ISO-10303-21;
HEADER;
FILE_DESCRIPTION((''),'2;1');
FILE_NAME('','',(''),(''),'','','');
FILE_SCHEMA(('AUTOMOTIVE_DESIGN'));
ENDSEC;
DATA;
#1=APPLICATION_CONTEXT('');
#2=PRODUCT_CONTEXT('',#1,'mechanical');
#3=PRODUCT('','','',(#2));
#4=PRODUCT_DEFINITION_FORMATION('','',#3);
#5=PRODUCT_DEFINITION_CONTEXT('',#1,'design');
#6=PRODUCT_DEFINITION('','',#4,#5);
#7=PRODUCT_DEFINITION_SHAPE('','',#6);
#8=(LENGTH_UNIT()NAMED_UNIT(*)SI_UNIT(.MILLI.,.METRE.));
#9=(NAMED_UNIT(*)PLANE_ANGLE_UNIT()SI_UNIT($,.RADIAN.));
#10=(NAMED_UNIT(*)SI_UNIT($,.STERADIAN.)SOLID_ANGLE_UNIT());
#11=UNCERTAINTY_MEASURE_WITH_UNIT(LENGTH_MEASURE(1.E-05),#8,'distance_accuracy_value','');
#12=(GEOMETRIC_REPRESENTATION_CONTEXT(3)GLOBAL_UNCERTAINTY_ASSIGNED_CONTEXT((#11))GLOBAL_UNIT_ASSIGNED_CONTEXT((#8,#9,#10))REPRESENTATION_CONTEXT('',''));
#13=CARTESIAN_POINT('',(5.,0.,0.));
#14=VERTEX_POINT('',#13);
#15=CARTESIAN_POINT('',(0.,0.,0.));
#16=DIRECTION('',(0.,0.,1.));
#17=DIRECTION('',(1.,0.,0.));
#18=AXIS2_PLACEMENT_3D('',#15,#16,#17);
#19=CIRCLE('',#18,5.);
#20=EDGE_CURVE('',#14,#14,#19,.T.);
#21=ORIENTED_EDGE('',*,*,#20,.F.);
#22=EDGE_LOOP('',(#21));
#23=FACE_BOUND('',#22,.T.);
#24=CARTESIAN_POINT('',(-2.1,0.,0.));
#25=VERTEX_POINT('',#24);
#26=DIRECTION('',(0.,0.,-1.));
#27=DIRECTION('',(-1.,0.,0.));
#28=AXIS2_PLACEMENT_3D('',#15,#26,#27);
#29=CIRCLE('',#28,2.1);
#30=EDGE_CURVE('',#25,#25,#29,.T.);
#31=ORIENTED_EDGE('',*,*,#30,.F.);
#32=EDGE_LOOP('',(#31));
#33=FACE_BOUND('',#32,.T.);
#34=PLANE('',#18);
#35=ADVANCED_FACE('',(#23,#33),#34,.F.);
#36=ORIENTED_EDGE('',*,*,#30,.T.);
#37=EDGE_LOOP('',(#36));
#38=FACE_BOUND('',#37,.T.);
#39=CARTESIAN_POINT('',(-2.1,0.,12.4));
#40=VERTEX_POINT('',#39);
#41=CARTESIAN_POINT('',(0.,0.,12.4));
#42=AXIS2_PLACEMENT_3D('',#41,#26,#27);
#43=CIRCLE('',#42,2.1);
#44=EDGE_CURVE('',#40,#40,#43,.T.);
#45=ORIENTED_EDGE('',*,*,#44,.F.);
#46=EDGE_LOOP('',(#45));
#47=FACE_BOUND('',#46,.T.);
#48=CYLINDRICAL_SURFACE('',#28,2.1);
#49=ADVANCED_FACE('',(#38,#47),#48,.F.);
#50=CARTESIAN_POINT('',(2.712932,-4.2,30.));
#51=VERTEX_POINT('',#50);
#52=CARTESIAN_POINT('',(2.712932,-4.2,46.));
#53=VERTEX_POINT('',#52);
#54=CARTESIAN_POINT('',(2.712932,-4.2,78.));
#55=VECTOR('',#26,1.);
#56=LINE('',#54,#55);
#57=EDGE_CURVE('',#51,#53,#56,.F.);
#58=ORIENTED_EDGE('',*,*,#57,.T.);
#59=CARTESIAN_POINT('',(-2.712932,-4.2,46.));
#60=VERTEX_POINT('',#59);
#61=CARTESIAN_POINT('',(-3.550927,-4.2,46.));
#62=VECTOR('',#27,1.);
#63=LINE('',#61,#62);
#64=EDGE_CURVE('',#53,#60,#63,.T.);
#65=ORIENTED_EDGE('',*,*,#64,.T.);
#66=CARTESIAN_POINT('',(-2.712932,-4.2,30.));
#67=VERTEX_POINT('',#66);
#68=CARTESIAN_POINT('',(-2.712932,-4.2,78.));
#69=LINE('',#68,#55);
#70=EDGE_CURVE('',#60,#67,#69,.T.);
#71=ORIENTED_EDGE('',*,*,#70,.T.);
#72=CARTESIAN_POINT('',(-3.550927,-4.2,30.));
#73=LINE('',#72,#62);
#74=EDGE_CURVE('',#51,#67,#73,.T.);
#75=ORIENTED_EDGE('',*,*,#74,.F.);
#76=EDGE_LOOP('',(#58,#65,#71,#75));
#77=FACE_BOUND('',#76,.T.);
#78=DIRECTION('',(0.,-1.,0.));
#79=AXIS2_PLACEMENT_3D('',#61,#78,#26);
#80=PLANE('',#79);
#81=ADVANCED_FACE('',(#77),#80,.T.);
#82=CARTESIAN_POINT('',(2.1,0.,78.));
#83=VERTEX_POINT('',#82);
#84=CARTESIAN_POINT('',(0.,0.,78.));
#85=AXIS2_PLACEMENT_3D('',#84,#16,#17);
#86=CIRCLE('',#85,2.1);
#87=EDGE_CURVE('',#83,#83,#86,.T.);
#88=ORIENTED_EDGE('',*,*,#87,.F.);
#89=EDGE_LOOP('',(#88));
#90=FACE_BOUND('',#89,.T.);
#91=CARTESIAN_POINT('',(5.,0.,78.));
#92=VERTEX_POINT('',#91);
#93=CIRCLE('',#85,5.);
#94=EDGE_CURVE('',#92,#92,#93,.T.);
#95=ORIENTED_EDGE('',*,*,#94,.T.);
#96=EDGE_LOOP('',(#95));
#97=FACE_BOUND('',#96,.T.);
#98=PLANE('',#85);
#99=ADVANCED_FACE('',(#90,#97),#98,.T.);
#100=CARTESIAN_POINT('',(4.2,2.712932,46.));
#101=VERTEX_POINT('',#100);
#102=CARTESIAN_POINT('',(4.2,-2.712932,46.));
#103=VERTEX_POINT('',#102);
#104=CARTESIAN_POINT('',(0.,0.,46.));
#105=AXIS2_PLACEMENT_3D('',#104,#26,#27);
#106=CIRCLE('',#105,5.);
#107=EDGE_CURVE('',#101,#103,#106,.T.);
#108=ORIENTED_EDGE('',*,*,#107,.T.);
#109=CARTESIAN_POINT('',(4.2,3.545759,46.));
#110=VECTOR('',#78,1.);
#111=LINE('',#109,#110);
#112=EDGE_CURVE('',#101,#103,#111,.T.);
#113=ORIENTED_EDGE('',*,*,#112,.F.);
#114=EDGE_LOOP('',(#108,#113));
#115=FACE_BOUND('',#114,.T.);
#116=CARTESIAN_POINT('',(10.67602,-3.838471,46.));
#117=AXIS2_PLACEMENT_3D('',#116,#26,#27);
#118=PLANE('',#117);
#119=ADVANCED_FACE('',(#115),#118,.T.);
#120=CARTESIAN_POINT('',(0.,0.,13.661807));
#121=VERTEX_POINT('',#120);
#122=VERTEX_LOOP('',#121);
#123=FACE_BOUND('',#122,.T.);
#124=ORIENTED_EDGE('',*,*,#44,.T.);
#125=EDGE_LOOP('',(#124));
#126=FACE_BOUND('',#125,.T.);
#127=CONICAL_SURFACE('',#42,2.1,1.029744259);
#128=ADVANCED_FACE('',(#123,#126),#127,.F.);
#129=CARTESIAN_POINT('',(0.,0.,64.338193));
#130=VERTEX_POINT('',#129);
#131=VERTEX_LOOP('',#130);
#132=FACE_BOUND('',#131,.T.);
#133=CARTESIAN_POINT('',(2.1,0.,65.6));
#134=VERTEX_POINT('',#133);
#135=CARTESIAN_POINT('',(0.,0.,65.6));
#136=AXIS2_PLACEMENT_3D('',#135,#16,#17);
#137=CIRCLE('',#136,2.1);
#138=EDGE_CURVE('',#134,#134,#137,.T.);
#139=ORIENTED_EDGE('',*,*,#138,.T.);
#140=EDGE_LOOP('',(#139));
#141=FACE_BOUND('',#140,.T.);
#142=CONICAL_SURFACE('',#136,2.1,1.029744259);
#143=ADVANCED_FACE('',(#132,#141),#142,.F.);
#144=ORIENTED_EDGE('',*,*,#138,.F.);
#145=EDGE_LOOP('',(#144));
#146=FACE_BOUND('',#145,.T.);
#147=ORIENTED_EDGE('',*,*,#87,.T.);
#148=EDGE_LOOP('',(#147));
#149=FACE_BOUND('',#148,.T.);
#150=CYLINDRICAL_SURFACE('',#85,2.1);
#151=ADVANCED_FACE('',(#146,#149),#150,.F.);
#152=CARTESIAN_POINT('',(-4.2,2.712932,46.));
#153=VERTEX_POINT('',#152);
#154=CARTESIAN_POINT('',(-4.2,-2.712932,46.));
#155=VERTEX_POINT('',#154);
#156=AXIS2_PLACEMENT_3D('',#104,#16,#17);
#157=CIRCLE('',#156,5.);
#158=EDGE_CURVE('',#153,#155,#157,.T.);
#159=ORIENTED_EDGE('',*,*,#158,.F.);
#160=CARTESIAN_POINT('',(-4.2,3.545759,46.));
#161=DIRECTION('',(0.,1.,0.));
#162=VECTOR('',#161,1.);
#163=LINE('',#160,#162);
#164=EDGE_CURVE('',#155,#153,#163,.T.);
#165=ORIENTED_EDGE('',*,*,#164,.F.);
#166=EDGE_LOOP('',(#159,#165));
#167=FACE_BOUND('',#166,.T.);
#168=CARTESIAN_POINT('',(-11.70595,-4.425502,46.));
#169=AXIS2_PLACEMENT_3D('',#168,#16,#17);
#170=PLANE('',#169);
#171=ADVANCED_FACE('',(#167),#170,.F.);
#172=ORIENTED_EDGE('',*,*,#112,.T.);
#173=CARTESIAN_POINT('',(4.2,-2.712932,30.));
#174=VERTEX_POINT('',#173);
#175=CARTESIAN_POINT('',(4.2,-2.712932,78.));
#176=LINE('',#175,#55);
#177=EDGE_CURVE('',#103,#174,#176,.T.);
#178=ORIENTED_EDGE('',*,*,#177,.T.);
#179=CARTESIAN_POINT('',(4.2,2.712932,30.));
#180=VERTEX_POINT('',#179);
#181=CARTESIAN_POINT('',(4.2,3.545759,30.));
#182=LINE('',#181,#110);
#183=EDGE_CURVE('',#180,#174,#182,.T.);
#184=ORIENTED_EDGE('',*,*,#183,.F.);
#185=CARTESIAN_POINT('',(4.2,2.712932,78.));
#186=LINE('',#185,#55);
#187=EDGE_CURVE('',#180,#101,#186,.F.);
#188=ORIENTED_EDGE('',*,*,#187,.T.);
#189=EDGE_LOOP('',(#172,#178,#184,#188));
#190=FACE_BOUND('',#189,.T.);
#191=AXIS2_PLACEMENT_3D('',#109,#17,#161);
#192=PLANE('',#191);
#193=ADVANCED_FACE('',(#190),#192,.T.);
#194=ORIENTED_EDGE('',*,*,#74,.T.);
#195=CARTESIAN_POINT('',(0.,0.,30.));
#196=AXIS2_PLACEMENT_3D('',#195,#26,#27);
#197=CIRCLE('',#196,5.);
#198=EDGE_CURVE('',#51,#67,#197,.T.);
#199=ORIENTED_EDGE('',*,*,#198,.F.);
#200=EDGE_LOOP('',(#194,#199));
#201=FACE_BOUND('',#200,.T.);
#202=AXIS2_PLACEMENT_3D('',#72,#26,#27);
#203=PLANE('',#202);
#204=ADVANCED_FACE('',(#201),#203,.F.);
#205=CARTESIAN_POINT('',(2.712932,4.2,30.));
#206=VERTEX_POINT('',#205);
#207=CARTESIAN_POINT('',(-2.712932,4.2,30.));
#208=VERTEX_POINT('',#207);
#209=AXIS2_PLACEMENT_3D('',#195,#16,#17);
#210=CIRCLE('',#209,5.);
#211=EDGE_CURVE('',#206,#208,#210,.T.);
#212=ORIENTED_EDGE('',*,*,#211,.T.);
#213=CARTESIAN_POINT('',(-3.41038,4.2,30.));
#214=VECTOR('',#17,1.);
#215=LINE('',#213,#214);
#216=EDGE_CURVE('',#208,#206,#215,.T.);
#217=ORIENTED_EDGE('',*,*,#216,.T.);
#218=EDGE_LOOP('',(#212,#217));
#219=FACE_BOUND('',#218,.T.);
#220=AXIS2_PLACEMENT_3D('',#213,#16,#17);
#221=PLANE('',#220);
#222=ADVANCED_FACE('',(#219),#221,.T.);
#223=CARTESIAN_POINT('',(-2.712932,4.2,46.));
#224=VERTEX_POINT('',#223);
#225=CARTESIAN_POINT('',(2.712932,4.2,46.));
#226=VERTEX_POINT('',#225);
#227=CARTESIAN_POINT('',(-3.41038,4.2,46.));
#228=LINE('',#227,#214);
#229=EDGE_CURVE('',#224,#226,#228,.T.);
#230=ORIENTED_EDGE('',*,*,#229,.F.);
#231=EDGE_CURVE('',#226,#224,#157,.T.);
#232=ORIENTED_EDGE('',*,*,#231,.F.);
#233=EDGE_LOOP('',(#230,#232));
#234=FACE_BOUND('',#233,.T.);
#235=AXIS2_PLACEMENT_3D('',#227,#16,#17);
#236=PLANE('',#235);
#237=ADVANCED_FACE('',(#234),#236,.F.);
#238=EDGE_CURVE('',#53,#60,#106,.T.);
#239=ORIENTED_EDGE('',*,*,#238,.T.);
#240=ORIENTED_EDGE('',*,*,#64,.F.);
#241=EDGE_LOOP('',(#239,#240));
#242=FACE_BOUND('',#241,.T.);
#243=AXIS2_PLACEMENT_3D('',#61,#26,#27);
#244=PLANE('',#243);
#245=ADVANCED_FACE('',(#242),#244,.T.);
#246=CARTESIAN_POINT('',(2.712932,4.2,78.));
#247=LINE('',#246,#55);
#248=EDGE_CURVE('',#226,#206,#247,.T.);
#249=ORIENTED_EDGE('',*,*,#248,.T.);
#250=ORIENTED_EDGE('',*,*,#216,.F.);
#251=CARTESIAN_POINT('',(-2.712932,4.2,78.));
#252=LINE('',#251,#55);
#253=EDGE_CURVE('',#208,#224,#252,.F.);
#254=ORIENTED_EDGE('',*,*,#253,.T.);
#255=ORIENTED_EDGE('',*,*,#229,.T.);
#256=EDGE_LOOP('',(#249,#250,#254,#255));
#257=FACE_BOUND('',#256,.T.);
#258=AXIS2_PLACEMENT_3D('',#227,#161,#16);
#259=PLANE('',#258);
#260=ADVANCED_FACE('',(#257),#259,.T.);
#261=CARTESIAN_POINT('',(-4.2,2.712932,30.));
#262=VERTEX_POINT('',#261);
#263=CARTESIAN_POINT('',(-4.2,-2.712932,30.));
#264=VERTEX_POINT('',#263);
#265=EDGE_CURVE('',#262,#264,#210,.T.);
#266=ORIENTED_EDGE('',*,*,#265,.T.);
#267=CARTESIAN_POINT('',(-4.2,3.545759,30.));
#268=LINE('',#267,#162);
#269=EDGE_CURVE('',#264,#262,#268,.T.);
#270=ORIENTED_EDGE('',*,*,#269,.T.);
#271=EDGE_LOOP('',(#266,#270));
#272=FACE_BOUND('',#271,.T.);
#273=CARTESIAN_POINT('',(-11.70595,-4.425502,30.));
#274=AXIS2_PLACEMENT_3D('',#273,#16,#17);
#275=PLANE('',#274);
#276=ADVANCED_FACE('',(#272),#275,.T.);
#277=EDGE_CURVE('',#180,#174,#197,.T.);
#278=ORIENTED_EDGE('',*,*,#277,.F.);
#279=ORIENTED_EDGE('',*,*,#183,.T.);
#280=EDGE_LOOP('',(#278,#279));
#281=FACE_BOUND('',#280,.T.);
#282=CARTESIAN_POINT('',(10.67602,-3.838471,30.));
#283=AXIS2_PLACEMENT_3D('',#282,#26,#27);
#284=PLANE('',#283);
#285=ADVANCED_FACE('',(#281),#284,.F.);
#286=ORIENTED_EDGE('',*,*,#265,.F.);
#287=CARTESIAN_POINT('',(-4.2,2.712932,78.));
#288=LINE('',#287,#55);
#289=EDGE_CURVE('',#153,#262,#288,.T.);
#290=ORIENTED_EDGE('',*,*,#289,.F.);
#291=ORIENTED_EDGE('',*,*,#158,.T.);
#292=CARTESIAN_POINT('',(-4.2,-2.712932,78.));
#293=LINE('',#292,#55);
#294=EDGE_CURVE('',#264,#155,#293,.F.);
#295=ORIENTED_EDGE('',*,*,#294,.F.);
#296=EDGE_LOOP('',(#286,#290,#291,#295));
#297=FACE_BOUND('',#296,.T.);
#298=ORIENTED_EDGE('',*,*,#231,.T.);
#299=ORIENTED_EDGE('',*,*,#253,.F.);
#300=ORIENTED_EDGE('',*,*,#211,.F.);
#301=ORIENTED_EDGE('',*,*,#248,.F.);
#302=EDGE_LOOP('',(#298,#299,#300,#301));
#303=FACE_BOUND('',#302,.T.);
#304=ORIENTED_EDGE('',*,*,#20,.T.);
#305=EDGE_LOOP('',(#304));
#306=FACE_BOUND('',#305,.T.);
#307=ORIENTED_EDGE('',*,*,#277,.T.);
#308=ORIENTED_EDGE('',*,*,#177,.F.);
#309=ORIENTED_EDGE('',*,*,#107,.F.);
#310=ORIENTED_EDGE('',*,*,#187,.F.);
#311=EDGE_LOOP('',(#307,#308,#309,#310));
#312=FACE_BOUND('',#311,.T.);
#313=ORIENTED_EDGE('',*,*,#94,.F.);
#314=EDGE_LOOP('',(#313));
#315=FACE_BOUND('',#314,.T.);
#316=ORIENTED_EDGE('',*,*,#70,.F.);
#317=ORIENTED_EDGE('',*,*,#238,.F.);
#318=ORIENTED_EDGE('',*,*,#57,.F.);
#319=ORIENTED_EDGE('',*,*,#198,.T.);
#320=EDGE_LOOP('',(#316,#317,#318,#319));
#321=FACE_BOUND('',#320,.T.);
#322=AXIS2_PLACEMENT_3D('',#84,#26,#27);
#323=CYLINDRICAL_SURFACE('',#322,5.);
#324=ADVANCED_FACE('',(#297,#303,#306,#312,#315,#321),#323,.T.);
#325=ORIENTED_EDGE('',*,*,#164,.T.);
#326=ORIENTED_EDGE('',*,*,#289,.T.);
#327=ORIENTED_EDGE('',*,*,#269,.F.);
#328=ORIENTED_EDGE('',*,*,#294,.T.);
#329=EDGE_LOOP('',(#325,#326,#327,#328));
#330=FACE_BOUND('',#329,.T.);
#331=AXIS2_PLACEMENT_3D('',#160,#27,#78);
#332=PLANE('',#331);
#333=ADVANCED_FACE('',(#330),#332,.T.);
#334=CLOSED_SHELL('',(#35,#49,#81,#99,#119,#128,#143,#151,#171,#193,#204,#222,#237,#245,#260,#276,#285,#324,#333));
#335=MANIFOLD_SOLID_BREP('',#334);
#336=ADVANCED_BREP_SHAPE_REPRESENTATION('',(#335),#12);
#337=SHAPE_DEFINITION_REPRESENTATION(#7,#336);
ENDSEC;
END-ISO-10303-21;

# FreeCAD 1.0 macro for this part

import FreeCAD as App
import Part
import Sketcher
Q = App.Units.Quantity


def add_polygon(sketch, points):
    """Adds a closed chain of lines whose ends are joined by coincident constraints."""
    first, n = sketch.GeometryCount, len(points)
    for a, b in zip(points, points[1:] + points[:1]):
        sketch.addGeometry(Part.LineSegment(App.Vector(*a, 0), App.Vector(*b, 0)), False)
    for i in range(n):
        sketch.addConstraint(Sketcher.Constraint("Coincident", first + i, 2, first + (i + 1) % n, 1))

doc = App.newDocument("Part")
body = doc.addObject("PartDesign::Body", "Body")

# Sketch on XY plane
sketch1 = body.newObject("Sketcher::SketchObject", "Sketch")
sketch1.AttachmentSupport = (doc.getObject("XY_Plane"), [""])
sketch1.MapMode = "FlatFace"
sketch1.addGeometry(Part.Circle(App.Vector(0, 0, 0), App.Vector(0, 0, 1), 5), False)
sketch1.addConstraint(Sketcher.Constraint("Coincident", 0, 3, -1, 1))
sketch1.addConstraint(Sketcher.Constraint("Diameter", 0, Q("10 mm")))
pad1 = body.newObject("PartDesign::Pad", "Pad")
pad1.Profile = sketch1
pad1.Length = 78

# Sketch on XY plane
sketch2 = body.newObject("Sketcher::SketchObject", "Sketch001")
sketch2.AttachmentSupport = (doc.getObject("XY_Plane"), [""])
sketch2.MapMode = "FlatFace"
sketch2.AttachmentOffset = App.Placement(App.Vector(0, 0, 78), App.Rotation())
sketch2.addGeometry(Part.Circle(App.Vector(0, 0, 0), App.Vector(0, 0, 1), 2.1), False)
sketch2.addConstraint(Sketcher.Constraint("Coincident", 0, 3, -1, 1))
sketch2.addConstraint(Sketcher.Constraint("Diameter", 0, Q("4.2 mm")))
doc.recompute()
hole = body.newObject("PartDesign::Hole", "Hole")
hole.Profile = sketch2
hole.ThreadType = "None"
hole.Diameter = 4.2
hole.DepthType = "Dimension"
hole.Depth = 12.4
hole.DrillPoint = "Angled"
hole.DrillPointAngle = 118

# Sketch on XY plane
sketch3 = body.newObject("Sketcher::SketchObject", "Sketch002")
sketch3.AttachmentSupport = (doc.getObject("XY_Plane"), [""])
sketch3.MapMode = "FlatFace"
sketch3.addGeometry(Part.Circle(App.Vector(0, 0, 0), App.Vector(0, 0, 1), 2.1), False)
sketch3.addConstraint(Sketcher.Constraint("Coincident", 0, 3, -1, 1))
sketch3.addConstraint(Sketcher.Constraint("Diameter", 0, Q("4.2 mm")))
doc.recompute()
hole2 = body.newObject("PartDesign::Hole", "Hole001")
hole2.Profile = sketch3
hole2.ThreadType = "None"
hole2.Diameter = 4.2
hole2.DepthType = "Dimension"
hole2.Depth = 12.4
hole2.DrillPoint = "Angled"
hole2.DrillPointAngle = 118
hole2.Reversed = True

# Sketch on XY plane
sketch4 = body.newObject("Sketcher::SketchObject", "Sketch003")
sketch4.AttachmentSupport = (doc.getObject("XY_Plane"), [""])
sketch4.MapMode = "FlatFace"
sketch4.AttachmentOffset = App.Placement(App.Vector(0, 0, 38), App.Rotation())
add_polygon(sketch4, [(-11.7, 3.5), (-11.7, -4.4), (-4.2, -4.4), (-4.2, 3.5)])  # lines 0-3
add_polygon(sketch4, [(-3.4, 8.6), (-3.4, 4.2), (3.4, 4.2), (3.4, 8.6)])  # lines 4-7
add_polygon(sketch4, [(4.2, 3.5), (4.2, -3.8), (10.7, -3.8), (10.7, 3.5)])  # lines 8-11
add_polygon(sketch4, [(-3.6, -4.2), (-3.6, -8.8), (3.4, -8.8), (3.4, -4.2)])  # lines 12-15
sketch4.addConstraint(Sketcher.Constraint("Vertical", 0))
sketch4.addConstraint(Sketcher.Constraint("Horizontal", 1))
sketch4.addConstraint(Sketcher.Constraint("Vertical", 2))
sketch4.addConstraint(Sketcher.Constraint("Horizontal", 3))
sketch4.addConstraint(Sketcher.Constraint("Vertical", 4))
sketch4.addConstraint(Sketcher.Constraint("Horizontal", 5))
sketch4.addConstraint(Sketcher.Constraint("Vertical", 6))
sketch4.addConstraint(Sketcher.Constraint("Horizontal", 7))
sketch4.addConstraint(Sketcher.Constraint("Vertical", 8))
sketch4.addConstraint(Sketcher.Constraint("Horizontal", 9))
sketch4.addConstraint(Sketcher.Constraint("Vertical", 10))
sketch4.addConstraint(Sketcher.Constraint("Horizontal", 11))
sketch4.addConstraint(Sketcher.Constraint("Vertical", 12))
sketch4.addConstraint(Sketcher.Constraint("Horizontal", 13))
sketch4.addConstraint(Sketcher.Constraint("Vertical", 14))
sketch4.addConstraint(Sketcher.Constraint("Horizontal", 15))
sketch4.addConstraint(Sketcher.Constraint("Symmetric", 2, 2, 11, 2, -2))
sketch4.addConstraint(Sketcher.Constraint("DistanceX", 1, 2, -1, 1, Q("4.2 mm")))
sketch4.addConstraint(Sketcher.Constraint("DistanceY", -1, 1, 4, 2, Q("4.2 mm")))
sketch4.addConstraint(Sketcher.Constraint("DistanceY", 14, 2, -1, 1, Q("4.2 mm")))
sketch4.addConstraint(Sketcher.Constraint("DistanceX", 1, 1, 1, 2, Q("7.50595 mm")))
sketch4.addConstraint(Sketcher.Constraint("DistanceX", 5, 1, 5, 2, Q("6.84203 mm")))
sketch4.addConstraint(Sketcher.Constraint("DistanceX", 9, 1, 9, 2, Q("6.47602 mm")))
sketch4.addConstraint(Sketcher.Constraint("DistanceX", 13, 1, 13, 2, Q("6.951681 mm")))
sketch4.addConstraint(Sketcher.Constraint("DistanceY", 0, 2, 0, 1, Q("7.971261 mm")))
sketch4.addConstraint(Sketcher.Constraint("DistanceY", 8, 2, 8, 1, Q("7.38423 mm")))
sketch4.addConstraint(Sketcher.Constraint("DistanceY", 0, 2, -1, 1, Q("4.425502 mm")))
sketch4.addConstraint(Sketcher.Constraint("DistanceX", 3, 2, 5, 2, Q("15.1376 mm")))
sketch4.addConstraint(Sketcher.Constraint("DistanceY", 4, 2, 4, 1, Q("4.427384 mm")))
sketch4.addConstraint(Sketcher.Constraint("DistanceY", 12, 2, 12, 1, Q("4.627407 mm")))
sketch4.addConstraint(Sketcher.Constraint("DistanceX", 12, 2, -1, 1, Q("3.550927 mm")))
pocket1 = body.newObject("PartDesign::Pocket", "Pocket")
pocket1.Profile = sketch4
pocket1.Type = "TwoLengths"
pocket1.Length = 8
pocket1.Length2 = 8
pocket1.Reversed = True

doc.recompute()
